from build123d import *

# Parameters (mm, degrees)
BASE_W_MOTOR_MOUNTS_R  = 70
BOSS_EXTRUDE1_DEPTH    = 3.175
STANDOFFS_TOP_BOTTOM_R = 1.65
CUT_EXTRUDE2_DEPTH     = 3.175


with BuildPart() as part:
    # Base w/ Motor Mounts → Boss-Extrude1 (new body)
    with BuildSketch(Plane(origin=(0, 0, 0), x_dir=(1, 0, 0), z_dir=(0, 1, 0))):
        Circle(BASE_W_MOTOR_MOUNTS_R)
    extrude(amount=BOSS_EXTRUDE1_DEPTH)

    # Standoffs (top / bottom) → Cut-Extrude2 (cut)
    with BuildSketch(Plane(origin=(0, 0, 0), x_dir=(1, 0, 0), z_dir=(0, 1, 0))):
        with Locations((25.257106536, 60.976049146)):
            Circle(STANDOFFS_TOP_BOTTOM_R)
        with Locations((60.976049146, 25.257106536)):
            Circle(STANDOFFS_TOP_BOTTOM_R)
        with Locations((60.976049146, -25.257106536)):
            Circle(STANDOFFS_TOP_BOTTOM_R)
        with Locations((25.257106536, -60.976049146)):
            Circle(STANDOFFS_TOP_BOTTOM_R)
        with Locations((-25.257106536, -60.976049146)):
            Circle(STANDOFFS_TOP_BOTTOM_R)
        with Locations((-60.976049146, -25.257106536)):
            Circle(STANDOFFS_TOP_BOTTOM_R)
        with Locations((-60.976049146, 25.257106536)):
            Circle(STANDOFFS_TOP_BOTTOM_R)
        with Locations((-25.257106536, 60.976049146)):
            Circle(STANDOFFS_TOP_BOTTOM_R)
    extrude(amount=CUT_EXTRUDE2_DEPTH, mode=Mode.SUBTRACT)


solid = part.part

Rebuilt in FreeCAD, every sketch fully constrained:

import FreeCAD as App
import Part
import Sketcher
Q = App.Units.Quantity

doc = App.newDocument("Part")
body = doc.addObject("PartDesign::Body", "Body")

sketch1 = doc.addObject("Sketcher::SketchObject", "Sketch")
body.addObject(sketch1)
sketch1.AttachmentSupport = (doc.XZ_Plane, [""])
sketch1.MapMode = "FlatFace"
sketch1.addGeometry(Part.Circle(App.Vector(0, 0, 0), App.Vector(0, 0, 1), 70), False)
sketch1.addConstraint([
    Sketcher.Constraint("Coincident", 0, 3, -1, 1),
    Sketcher.Constraint("Diameter", 0, Q("140 mm")),
])
pad1 = doc.addObject("PartDesign::Pad", "Pad")
body.addObject(pad1)
pad1.Profile = sketch1
pad1.Length = 3.175
pad1.Reversed = True

sketch2 = doc.addObject("Sketcher::SketchObject", "Sketch001")
body.addObject(sketch2)
sketch2.AttachmentSupport = (doc.XZ_Plane, [""])
sketch2.MapMode = "FlatFace"
sketch2.addGeometry([
    Part.Circle(App.Vector(25.257107, -60.976049, 0), App.Vector(0, 0, 1), 1.65),
    Part.Circle(App.Vector(60.976049, -25.257107, 0), App.Vector(0, 0, 1), 1.65),
    Part.Circle(App.Vector(60.976049, 25.257107, 0), App.Vector(0, 0, 1), 1.65),
    Part.Circle(App.Vector(25.257107, 60.976049, 0), App.Vector(0, 0, 1), 1.65),
    Part.Circle(App.Vector(-25.257107, 60.976049, 0), App.Vector(0, 0, 1), 1.65),
    Part.Circle(App.Vector(-60.976049, 25.257107, 0), App.Vector(0, 0, 1), 1.65),
    Part.Circle(App.Vector(-60.976049, -25.257107, 0), App.Vector(0, 0, 1), 1.65),
    Part.Circle(App.Vector(-25.257107, -60.976049, 0), App.Vector(0, 0, 1), 1.65),
], False)
sketch2.addConstraint([
    Sketcher.Constraint("Equal", 0, 1),
    Sketcher.Constraint("Equal", 1, 2),
    Sketcher.Constraint("Equal", 2, 3),
    Sketcher.Constraint("Equal", 3, 4),
    Sketcher.Constraint("Equal", 4, 5),
    Sketcher.Constraint("Equal", 5, 6),
    Sketcher.Constraint("Equal", 6, 7),
    Sketcher.Constraint("Symmetric", 0, 3, 4, 3, -1, 1),
    Sketcher.Constraint("Symmetric", 1, 3, 5, 3, -1, 1),
    Sketcher.Constraint("Symmetric", 2, 3, 6, 3, -1, 1),
    Sketcher.Constraint("Symmetric", 3, 3, 7, 3, -1, 1),
    Sketcher.Constraint("Symmetric", 3, 3, 4, 3, -2),
    Sketcher.Constraint("Symmetric", 2, 3, 5, 3, -2),
    Sketcher.Constraint("Diameter", 0, Q("3.3 mm")),
    Sketcher.Constraint("DistanceY", 0, 3, 3, 3, Q("121.952098 mm")),
    Sketcher.Constraint("DistanceX", 5, 3, 2, 3, Q("121.952098 mm")),
    Sketcher.Constraint("DistanceX", -1, 1, 0, 3, Q("25.257107 mm")),
    Sketcher.Constraint("DistanceY", 1, 3, -1, 1, Q("25.257107 mm")),
])
pocket1 = doc.addObject("PartDesign::Pocket", "Pocket")
body.addObject(pocket1)
pocket1.Profile = sketch2
pocket1.Length = 3.175

doc.recompute()
